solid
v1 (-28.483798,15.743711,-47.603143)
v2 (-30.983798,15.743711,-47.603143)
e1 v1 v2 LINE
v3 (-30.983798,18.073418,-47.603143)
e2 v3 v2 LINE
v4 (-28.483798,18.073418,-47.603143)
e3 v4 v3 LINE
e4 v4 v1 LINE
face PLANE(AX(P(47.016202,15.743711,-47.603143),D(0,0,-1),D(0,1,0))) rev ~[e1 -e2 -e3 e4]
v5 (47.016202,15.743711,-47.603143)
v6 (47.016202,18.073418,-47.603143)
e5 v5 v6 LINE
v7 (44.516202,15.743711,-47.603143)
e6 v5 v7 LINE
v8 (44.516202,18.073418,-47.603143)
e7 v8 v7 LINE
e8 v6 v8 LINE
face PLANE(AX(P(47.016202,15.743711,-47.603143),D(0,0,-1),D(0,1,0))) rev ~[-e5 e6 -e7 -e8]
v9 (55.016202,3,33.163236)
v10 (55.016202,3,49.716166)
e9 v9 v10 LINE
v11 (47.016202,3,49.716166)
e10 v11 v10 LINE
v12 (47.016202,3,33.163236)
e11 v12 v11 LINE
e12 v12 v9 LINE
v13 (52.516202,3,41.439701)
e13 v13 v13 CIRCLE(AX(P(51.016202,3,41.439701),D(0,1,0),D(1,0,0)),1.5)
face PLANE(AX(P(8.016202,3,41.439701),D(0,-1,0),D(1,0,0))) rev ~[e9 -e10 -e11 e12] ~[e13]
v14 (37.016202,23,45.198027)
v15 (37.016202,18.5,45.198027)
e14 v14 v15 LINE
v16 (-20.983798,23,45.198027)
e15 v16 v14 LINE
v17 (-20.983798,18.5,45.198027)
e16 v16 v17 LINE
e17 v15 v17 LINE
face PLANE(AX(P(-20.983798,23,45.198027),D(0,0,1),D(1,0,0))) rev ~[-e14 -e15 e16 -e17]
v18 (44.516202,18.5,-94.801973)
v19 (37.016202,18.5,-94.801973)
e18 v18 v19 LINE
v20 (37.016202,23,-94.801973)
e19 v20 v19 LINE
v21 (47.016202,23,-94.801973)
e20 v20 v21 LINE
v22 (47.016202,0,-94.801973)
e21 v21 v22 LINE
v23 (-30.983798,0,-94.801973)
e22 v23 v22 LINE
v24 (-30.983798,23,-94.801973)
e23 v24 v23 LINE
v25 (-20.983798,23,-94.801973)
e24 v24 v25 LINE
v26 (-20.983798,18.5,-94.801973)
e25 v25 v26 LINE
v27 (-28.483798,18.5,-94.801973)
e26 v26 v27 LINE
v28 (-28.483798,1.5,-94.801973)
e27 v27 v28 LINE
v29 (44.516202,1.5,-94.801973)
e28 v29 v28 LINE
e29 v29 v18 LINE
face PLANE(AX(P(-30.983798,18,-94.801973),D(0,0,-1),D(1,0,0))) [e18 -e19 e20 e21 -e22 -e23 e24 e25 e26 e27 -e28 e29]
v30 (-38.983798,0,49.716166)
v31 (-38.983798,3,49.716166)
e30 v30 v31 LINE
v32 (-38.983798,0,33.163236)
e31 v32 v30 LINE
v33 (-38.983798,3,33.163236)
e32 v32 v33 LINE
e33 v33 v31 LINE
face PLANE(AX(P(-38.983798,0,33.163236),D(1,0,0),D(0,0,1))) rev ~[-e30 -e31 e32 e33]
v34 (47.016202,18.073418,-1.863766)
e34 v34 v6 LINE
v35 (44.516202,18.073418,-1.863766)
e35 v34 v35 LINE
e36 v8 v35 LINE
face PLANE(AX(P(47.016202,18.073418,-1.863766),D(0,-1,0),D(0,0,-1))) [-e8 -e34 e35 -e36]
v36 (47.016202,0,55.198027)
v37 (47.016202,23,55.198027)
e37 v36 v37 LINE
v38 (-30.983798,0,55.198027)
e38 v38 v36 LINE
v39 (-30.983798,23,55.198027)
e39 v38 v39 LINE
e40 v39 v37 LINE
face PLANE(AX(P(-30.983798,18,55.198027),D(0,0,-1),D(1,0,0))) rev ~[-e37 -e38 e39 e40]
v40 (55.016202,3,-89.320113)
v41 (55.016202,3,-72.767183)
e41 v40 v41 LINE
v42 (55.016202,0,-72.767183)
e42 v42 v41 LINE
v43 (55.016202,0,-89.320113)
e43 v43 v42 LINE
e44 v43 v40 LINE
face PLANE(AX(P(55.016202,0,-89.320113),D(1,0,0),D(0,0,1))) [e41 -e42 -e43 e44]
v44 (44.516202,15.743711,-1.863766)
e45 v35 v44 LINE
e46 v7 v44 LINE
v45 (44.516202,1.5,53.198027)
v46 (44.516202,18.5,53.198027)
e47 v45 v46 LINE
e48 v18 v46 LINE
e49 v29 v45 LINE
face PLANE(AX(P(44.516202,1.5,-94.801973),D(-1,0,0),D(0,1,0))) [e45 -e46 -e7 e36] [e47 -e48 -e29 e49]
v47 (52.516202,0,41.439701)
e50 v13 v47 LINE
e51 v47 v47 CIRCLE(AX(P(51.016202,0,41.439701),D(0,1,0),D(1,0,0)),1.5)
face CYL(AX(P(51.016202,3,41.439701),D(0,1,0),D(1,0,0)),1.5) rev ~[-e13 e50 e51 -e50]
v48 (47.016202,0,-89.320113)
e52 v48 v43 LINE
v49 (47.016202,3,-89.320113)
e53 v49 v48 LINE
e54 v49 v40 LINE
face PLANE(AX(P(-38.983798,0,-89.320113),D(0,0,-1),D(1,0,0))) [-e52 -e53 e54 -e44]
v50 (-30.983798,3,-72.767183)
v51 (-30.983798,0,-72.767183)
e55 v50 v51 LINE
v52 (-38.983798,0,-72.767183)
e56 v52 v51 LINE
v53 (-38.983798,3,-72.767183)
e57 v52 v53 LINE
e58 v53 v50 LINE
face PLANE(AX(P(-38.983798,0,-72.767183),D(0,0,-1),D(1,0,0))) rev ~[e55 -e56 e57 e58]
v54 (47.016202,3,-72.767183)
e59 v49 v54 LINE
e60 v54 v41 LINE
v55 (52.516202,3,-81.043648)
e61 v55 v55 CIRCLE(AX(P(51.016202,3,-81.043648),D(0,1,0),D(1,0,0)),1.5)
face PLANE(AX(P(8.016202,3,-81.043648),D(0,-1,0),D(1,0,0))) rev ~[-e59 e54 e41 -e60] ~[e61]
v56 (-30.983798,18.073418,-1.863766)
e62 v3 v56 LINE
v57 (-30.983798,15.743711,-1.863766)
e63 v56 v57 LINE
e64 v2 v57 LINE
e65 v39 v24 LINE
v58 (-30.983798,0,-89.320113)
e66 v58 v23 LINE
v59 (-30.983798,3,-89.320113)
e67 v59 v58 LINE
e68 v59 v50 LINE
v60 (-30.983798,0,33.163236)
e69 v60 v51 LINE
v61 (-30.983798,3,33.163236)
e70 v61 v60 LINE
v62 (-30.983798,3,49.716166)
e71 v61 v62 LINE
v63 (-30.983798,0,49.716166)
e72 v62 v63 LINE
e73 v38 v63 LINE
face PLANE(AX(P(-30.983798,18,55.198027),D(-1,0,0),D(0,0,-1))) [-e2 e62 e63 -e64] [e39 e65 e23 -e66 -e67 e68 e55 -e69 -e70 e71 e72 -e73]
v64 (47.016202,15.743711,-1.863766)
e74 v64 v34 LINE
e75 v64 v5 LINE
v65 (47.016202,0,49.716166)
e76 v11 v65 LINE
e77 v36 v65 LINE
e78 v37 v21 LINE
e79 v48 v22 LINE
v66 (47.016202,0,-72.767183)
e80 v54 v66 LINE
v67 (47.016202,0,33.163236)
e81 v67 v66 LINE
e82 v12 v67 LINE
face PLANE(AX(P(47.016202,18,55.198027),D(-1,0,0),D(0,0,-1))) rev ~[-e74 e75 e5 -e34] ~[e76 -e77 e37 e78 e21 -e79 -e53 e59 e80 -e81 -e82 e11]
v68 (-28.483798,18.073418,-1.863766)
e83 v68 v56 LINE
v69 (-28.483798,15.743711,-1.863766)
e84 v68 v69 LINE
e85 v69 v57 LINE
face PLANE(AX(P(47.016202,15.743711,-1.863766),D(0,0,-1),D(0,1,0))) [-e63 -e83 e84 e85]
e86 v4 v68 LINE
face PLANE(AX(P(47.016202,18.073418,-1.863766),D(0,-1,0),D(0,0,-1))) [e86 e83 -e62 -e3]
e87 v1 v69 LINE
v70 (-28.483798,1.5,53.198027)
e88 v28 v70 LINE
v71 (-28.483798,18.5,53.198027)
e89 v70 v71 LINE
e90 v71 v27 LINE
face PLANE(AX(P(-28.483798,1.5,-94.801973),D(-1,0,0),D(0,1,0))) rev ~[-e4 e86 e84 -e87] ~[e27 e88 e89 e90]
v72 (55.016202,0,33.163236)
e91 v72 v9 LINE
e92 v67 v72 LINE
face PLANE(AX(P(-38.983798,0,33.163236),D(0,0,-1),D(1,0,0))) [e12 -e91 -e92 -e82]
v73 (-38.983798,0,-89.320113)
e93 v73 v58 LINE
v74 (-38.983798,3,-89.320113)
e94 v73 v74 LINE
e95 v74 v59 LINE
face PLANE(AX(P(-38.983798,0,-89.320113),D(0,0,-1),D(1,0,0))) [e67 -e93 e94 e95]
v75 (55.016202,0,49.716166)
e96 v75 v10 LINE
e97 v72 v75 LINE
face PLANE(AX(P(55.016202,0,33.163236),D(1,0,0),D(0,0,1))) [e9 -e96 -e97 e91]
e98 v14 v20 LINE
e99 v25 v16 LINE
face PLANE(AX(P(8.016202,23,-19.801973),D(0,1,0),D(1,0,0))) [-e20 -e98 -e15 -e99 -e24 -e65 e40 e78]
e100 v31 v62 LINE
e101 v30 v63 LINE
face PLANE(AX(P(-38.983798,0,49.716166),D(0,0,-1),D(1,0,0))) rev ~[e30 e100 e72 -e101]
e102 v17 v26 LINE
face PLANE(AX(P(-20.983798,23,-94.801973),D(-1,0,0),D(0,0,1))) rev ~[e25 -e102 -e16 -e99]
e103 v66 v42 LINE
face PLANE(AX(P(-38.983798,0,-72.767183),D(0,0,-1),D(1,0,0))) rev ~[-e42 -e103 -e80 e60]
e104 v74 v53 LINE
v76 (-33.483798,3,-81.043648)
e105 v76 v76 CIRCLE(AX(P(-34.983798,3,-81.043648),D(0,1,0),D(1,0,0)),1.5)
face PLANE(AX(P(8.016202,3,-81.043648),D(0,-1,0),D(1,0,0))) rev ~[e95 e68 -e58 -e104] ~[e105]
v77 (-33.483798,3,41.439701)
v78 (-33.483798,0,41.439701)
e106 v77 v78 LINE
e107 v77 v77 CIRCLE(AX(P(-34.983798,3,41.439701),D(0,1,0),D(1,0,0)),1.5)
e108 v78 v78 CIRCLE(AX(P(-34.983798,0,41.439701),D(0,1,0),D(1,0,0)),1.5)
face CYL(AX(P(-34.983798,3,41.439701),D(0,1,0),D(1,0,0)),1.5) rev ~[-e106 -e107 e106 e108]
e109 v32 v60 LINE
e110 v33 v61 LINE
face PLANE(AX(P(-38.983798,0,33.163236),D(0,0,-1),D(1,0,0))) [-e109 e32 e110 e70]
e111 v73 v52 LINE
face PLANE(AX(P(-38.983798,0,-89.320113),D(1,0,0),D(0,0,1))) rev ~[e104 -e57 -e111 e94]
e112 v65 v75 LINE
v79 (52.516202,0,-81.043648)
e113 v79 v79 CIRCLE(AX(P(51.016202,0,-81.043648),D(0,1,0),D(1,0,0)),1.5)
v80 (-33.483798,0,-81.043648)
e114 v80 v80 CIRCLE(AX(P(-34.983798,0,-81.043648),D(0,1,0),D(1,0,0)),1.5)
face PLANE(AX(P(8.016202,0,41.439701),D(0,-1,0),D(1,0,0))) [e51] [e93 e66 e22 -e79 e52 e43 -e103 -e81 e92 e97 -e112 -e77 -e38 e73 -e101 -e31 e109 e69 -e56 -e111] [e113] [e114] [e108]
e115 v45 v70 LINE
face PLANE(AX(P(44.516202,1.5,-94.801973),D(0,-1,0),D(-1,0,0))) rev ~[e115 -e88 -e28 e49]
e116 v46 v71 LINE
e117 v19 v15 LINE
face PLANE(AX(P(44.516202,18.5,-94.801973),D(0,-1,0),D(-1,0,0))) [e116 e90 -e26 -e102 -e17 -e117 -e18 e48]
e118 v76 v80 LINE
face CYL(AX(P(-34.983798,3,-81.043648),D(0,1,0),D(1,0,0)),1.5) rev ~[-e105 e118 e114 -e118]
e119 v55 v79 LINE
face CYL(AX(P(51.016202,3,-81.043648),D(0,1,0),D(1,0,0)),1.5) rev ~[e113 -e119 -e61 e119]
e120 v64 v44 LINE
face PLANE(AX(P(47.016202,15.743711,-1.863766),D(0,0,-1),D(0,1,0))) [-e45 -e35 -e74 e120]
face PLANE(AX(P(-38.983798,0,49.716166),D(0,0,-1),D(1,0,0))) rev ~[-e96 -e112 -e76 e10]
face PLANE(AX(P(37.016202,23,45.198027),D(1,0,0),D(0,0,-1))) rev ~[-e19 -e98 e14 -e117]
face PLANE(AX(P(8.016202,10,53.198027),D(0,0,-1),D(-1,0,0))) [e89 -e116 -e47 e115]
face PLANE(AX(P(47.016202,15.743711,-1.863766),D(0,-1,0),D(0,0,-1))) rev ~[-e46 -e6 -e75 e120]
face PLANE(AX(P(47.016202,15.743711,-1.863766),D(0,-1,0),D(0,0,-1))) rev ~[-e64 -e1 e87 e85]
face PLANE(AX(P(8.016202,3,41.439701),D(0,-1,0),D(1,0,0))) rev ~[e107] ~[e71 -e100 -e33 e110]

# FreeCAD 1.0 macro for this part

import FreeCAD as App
import Part
import Sketcher
from FreeCAD import Vector
Q = App.Units.Quantity

doc = App.newDocument("Part")
params = doc.addObject("Spreadsheet::Sheet", "Params")
for row, (alias, value) in enumerate([
    ("sketch1_width", "78 mm"),
    ("sketch1_height", "150 mm"),
    ("pad1_length", "18 mm"),
    ("sketch2_width", "73 mm"),
    ("sketch2_height", "17 mm"),
    ("pocket1_length", "143 mm"),
    ("sketch3_width", "78 mm"),
    ("sketch3_height", "150 mm"),
    ("pad2_length", "5 mm"),
    ("sketch4_width", "73 mm"),
    ("sketch4_height", "17 mm"),
    ("pocket2_length", "148 mm"),
    ("sketch5_width", "58 mm"),
    ("sketch5_height", "140 mm"),
    ("pocket3_length", "10 mm"),
    ("pocket4_length", "147 mm"),
    ("sketch7_width", "94 mm"),
    ("pad3_length", "3 mm"),
    ("sketch8_width", "73 mm"),
    ("sketch8_height", "17 mm"),
    ("pocket5_length", "146 mm"),
    ("sketch9_diameter", "3 mm"),
    ("pocket6_length", "146 mm"),
], start=1):
    params.set(f"A{row}", alias)
    params.set(f"B{row}", "=" + value)
    params.setAlias(f"B{row}", alias)

body = doc.addObject("PartDesign::Body", "Body")

sketch1 = body.newObject("Sketcher::SketchObject", "Sketch")
sketch1.AttachmentSupport = (doc.getObject("XZ_Plane"), [""])
sketch1.MapMode = "FlatFace"
sketch1.addGeometry([
    Part.LineSegment(Vector(-31, -95, 0), Vector(-31, 55, 0)),
    Part.LineSegment(Vector(-31, 55, 0), Vector(47, 55, 0)),
    Part.LineSegment(Vector(47, 55, 0), Vector(47, -95, 0)),
    Part.LineSegment(Vector(47, -95, 0), Vector(-31, -95, 0)),
], False)
sketch1.addConstraint([
    Sketcher.Constraint("Coincident", 0, 2, 1, 1),
    Sketcher.Constraint("Coincident", 1, 2, 2, 1),
    Sketcher.Constraint("Coincident", 2, 2, 3, 1),
    Sketcher.Constraint("Coincident", 3, 2, 0, 1),
    Sketcher.Constraint("Vertical", 0),
    Sketcher.Constraint("Horizontal", 1),
    Sketcher.Constraint("Vertical", 2),
    Sketcher.Constraint("Horizontal", 3),
    Sketcher.Constraint("DistanceX", 1, 1, 1, 2, Q("78 mm")),
    Sketcher.Constraint("DistanceY", 0, 1, 0, 2, Q("150 mm")),
    Sketcher.Constraint("DistanceX", 0, 2, -1, 1, Q("30.983798 mm")),
    Sketcher.Constraint("DistanceY", -1, 1, 0, 2, Q("55.198027 mm")),
])
sketch1.setExpression("Constraints[8]", "Params.sketch1_width")
sketch1.setExpression("Constraints[9]", "Params.sketch1_height")
pad1 = body.newObject("PartDesign::Pad", "Pad")
pad1.Profile = sketch1
pad1.setExpression("Length", "Params.pad1_length")
pad1.Reversed = True

sketch2 = body.newObject("Sketcher::SketchObject", "Sketch001")
sketch2.AttachmentSupport = (doc.getObject("XY_Plane"), [""])
sketch2.MapMode = "FlatFace"
sketch2.AttachmentOffset = App.Placement(Vector(0, 0, -94.801973), App.Rotation())
sketch2.addGeometry([
    Part.LineSegment(Vector(45, 18, 0), Vector(45, 2, 0)),
    Part.LineSegment(Vector(45, 2, 0), Vector(-28, 2, 0)),
    Part.LineSegment(Vector(-28, 2, 0), Vector(-28, 18, 0)),
    Part.LineSegment(Vector(-28, 18, 0), Vector(45, 18, 0)),
], False)
sketch2.addConstraint([
    Sketcher.Constraint("Coincident", 0, 2, 1, 1),
    Sketcher.Constraint("Coincident", 1, 2, 2, 1),
    Sketcher.Constraint("Coincident", 2, 2, 3, 1),
    Sketcher.Constraint("Coincident", 3, 2, 0, 1),
    Sketcher.Constraint("Vertical", 0),
    Sketcher.Constraint("Horizontal", 1),
    Sketcher.Constraint("Vertical", 2),
    Sketcher.Constraint("Horizontal", 3),
    Sketcher.Constraint("DistanceX", 1, 2, 1, 1, Q("73 mm")),
    Sketcher.Constraint("DistanceY", 0, 2, 0, 1, Q("17 mm")),
    Sketcher.Constraint("DistanceY", -1, 1, 0, 2, Q("1.5 mm")),
    Sketcher.Constraint("DistanceX", -1, 1, 0, 2, Q("44.516202 mm")),
])
sketch2.setExpression("Constraints[8]", "Params.sketch2_width")
sketch2.setExpression("Constraints[9]", "Params.sketch2_height")
pocket1 = body.newObject("PartDesign::Pocket", "Pocket")
pocket1.Profile = sketch2
pocket1.setExpression("Length", "Params.pocket1_length")
pocket1.Reversed = True

sketch3 = body.newObject("Sketcher::SketchObject", "Sketch002")
sketch3.AttachmentSupport = (doc.getObject("XZ_Plane"), [""])
sketch3.MapMode = "FlatFace"
sketch3.AttachmentOffset = App.Placement(Vector(0, 0, -18), App.Rotation())
sketch3.addGeometry([
    Part.LineSegment(Vector(-31, -95, 0), Vector(-31, 55, 0)),
    Part.LineSegment(Vector(-31, 55, 0), Vector(47, 55, 0)),
    Part.LineSegment(Vector(47, 55, 0), Vector(47, -95, 0)),
    Part.LineSegment(Vector(47, -95, 0), Vector(-31, -95, 0)),
], False)
sketch3.addConstraint([
    Sketcher.Constraint("Coincident", 0, 2, 1, 1),
    Sketcher.Constraint("Coincident", 1, 2, 2, 1),
    Sketcher.Constraint("Coincident", 2, 2, 3, 1),
    Sketcher.Constraint("Coincident", 3, 2, 0, 1),
    Sketcher.Constraint("Vertical", 0),
    Sketcher.Constraint("Horizontal", 1),
    Sketcher.Constraint("Vertical", 2),
    Sketcher.Constraint("Horizontal", 3),
    Sketcher.Constraint("DistanceX", 1, 1, 1, 2, Q("78 mm")),
    Sketcher.Constraint("DistanceY", 0, 1, 0, 2, Q("150 mm")),
    Sketcher.Constraint("DistanceX", 0, 2, -1, 1, Q("30.983798 mm")),
    Sketcher.Constraint("DistanceY", -1, 1, 0, 2, Q("55.198027 mm")),
])
sketch3.setExpression("Constraints[8]", "Params.sketch3_width")
sketch3.setExpression("Constraints[9]", "Params.sketch3_height")
pad2 = body.newObject("PartDesign::Pad", "Pad001")
pad2.Profile = sketch3
pad2.setExpression("Length", "Params.pad2_length")
pad2.Reversed = True

sketch4 = body.newObject("Sketcher::SketchObject", "Sketch003")
sketch4.AttachmentSupport = (doc.getObject("XY_Plane"), [""])
sketch4.MapMode = "FlatFace"
sketch4.AttachmentOffset = App.Placement(Vector(0, 0, -94.801973), App.Rotation())
sketch4.addGeometry([
    Part.LineSegment(Vector(45, 18, 0), Vector(45, 2, 0)),
    Part.LineSegment(Vector(45, 2, 0), Vector(-28, 2, 0)),
    Part.LineSegment(Vector(-28, 2, 0), Vector(-28, 18, 0)),
    Part.LineSegment(Vector(-28, 18, 0), Vector(45, 18, 0)),
], False)
sketch4.addConstraint([
    Sketcher.Constraint("Coincident", 0, 2, 1, 1),
    Sketcher.Constraint("Coincident", 1, 2, 2, 1),
    Sketcher.Constraint("Coincident", 2, 2, 3, 1),
    Sketcher.Constraint("Coincident", 3, 2, 0, 1),
    Sketcher.Constraint("Vertical", 0),
    Sketcher.Constraint("Horizontal", 1),
    Sketcher.Constraint("Vertical", 2),
    Sketcher.Constraint("Horizontal", 3),
    Sketcher.Constraint("DistanceX", 1, 2, 1, 1, Q("73 mm")),
    Sketcher.Constraint("DistanceY", 0, 2, 0, 1, Q("17 mm")),
    Sketcher.Constraint("DistanceY", -1, 1, 0, 2, Q("1.5 mm")),
    Sketcher.Constraint("DistanceX", -1, 1, 0, 2, Q("44.516202 mm")),
])
sketch4.setExpression("Constraints[8]", "Params.sketch4_width")
sketch4.setExpression("Constraints[9]", "Params.sketch4_height")
pocket2 = body.newObject("PartDesign::Pocket", "Pocket001")
pocket2.Profile = sketch4
pocket2.setExpression("Length", "Params.pocket2_length")
pocket2.Reversed = True

sketch5 = body.newObject("Sketcher::SketchObject", "Sketch004")
sketch5.AttachmentSupport = (doc.getObject("XZ_Plane"), [""])
sketch5.MapMode = "FlatFace"
sketch5.AttachmentOffset = App.Placement(Vector(0, 0, -23), App.Rotation())
sketch5.addGeometry([
    Part.LineSegment(Vector(-21, 45, 0), Vector(37, 45, 0)),
    Part.LineSegment(Vector(37, 45, 0), Vector(37, -95, 0)),
    Part.LineSegment(Vector(37, -95, 0), Vector(-21, -95, 0)),
    Part.LineSegment(Vector(-21, -95, 0), Vector(-21, 45, 0)),
], False)
sketch5.addConstraint([
    Sketcher.Constraint("Coincident", 0, 2, 1, 1),
    Sketcher.Constraint("Coincident", 1, 2, 2, 1),
    Sketcher.Constraint("Coincident", 2, 2, 3, 1),
    Sketcher.Constraint("Coincident", 3, 2, 0, 1),
    Sketcher.Constraint("Horizontal", 0),
    Sketcher.Constraint("Vertical", 1),
    Sketcher.Constraint("Horizontal", 2),
    Sketcher.Constraint("Vertical", 3),
    Sketcher.Constraint("DistanceX", 0, 1, 0, 2, Q("58 mm")),
    Sketcher.Constraint("DistanceY", 1, 2, 1, 1, Q("140 mm")),
    Sketcher.Constraint("DistanceX", -1, 1, 0, 2, Q("37.016202 mm")),
    Sketcher.Constraint("DistanceY", -1, 1, 0, 2, Q("45.198027 mm")),
])
sketch5.setExpression("Constraints[8]", "Params.sketch5_width")
sketch5.setExpression("Constraints[9]", "Params.sketch5_height")
pocket3 = body.newObject("PartDesign::Pocket", "Pocket002")
pocket3.Profile = sketch5
pocket3.setExpression("Length", "Params.pocket3_length")
pocket3.Reversed = True

sketch6 = body.newObject("Sketcher::SketchObject", "Sketch005")
sketch6.AttachmentSupport = (doc.getObject("YZ_Plane"), [""])
sketch6.MapMode = "FlatFace"
sketch6.AttachmentOffset = App.Placement(Vector(0, 0, 47.016202), App.Rotation())
sketch6.addGeometry([
    Part.LineSegment(Vector(18.1, -1.9, 0), Vector(15.7, -1.9, 0)),
    Part.LineSegment(Vector(15.7, -1.9, 0), Vector(15.7, -47.6, 0)),
    Part.LineSegment(Vector(15.7, -47.6, 0), Vector(18.1, -47.6, 0)),
    Part.LineSegment(Vector(18.1, -47.6, 0), Vector(18.1, -1.9, 0)),
], False)
sketch6.addConstraint([
    Sketcher.Constraint("Coincident", 0, 2, 1, 1),
    Sketcher.Constraint("Coincident", 1, 2, 2, 1),
    Sketcher.Constraint("Coincident", 2, 2, 3, 1),
    Sketcher.Constraint("Coincident", 3, 2, 0, 1),
    Sketcher.Constraint("Horizontal", 0),
    Sketcher.Constraint("Vertical", 1),
    Sketcher.Constraint("Horizontal", 2),
    Sketcher.Constraint("Vertical", 3),
    Sketcher.Constraint("DistanceX", 0, 2, 0, 1, Q("2.329707 mm")),
    Sketcher.Constraint("DistanceY", 1, 2, 1, 1, Q("45.739378 mm")),
    Sketcher.Constraint("DistanceX", -1, 1, 0, 2, Q("15.743711 mm")),
    Sketcher.Constraint("DistanceY", 0, 2, -1, 1, Q("1.863766 mm")),
])
pocket4 = body.newObject("PartDesign::Pocket", "Pocket003")
pocket4.Profile = sketch6
pocket4.setExpression("Length", "Params.pocket4_length")

sketch7 = body.newObject("Sketcher::SketchObject", "Sketch006")
sketch7.AttachmentSupport = (doc.getObject("XZ_Plane"), [""])
sketch7.MapMode = "FlatFace"
sketch7.addGeometry([
    Part.LineSegment(Vector(-39, 50, 0), Vector(-39, 33, 0)),
    Part.LineSegment(Vector(-39, 33, 0), Vector(55, 33, 0)),
    Part.LineSegment(Vector(55, 33, 0), Vector(55, 50, 0)),
    Part.LineSegment(Vector(55, 50, 0), Vector(-39, 50, 0)),
    Part.LineSegment(Vector(-39, -73, 0), Vector(-39, -89, 0)),
    Part.LineSegment(Vector(-39, -89, 0), Vector(55, -89, 0)),
    Part.LineSegment(Vector(55, -89, 0), Vector(55, -73, 0)),
    Part.LineSegment(Vector(55, -73, 0), Vector(-39, -73, 0)),
], False)
sketch7.addConstraint([
    Sketcher.Constraint("Coincident", 0, 2, 1, 1),
    Sketcher.Constraint("Coincident", 1, 2, 2, 1),
    Sketcher.Constraint("Coincident", 2, 2, 3, 1),
    Sketcher.Constraint("Coincident", 3, 2, 0, 1),
    Sketcher.Constraint("Coincident", 4, 2, 5, 1),
    Sketcher.Constraint("Coincident", 5, 2, 6, 1),
    Sketcher.Constraint("Coincident", 6, 2, 7, 1),
    Sketcher.Constraint("Coincident", 7, 2, 4, 1),
    Sketcher.Constraint("Vertical", 0),
    Sketcher.Constraint("Horizontal", 1),
    Sketcher.Constraint("Vertical", 2),
    Sketcher.Constraint("Horizontal", 3),
    Sketcher.Constraint("Vertical", 4),
    Sketcher.Constraint("Horizontal", 5),
    Sketcher.Constraint("Vertical", 6),
    Sketcher.Constraint("Horizontal", 7),
    Sketcher.Constraint("Vertical", 3, 2, 4, 2),
    Sketcher.Constraint("Vertical", 2, 2, 5, 2),
    Sketcher.Constraint("Equal", 2, 4),
    Sketcher.Constraint("DistanceX", 1, 1, 1, 2, Q("94 mm")),
    Sketcher.Constraint("DistanceY", 0, 2, 0, 1, Q("16.55293 mm")),
    Sketcher.Constraint("DistanceY", 4, 2, 0, 2, Q("122.483349 mm")),
    Sketcher.Constraint("DistanceX", 0, 2, -1, 1, Q("38.983798 mm")),
    Sketcher.Constraint("DistanceY", -1, 1, 0, 2, Q("33.163236 mm")),
])
sketch7.setExpression("Constraints[19]", "Params.sketch7_width")
pad3 = body.newObject("PartDesign::Pad", "Pad002")
pad3.Profile = sketch7
pad3.setExpression("Length", "Params.pad3_length")
pad3.Reversed = True

sketch8 = body.newObject("Sketcher::SketchObject", "Sketch007")
sketch8.AttachmentSupport = (doc.getObject("XY_Plane"), [""])
sketch8.MapMode = "FlatFace"
sketch8.AttachmentOffset = App.Placement(Vector(0, 0, -94.801973), App.Rotation())
sketch8.addGeometry([
    Part.LineSegment(Vector(45, 18, 0), Vector(45, 2, 0)),
    Part.LineSegment(Vector(45, 2, 0), Vector(-28, 2, 0)),
    Part.LineSegment(Vector(-28, 2, 0), Vector(-28, 18, 0)),
    Part.LineSegment(Vector(-28, 18, 0), Vector(45, 18, 0)),
], False)
sketch8.addConstraint([
    Sketcher.Constraint("Coincident", 0, 2, 1, 1),
    Sketcher.Constraint("Coincident", 1, 2, 2, 1),
    Sketcher.Constraint("Coincident", 2, 2, 3, 1),
    Sketcher.Constraint("Coincident", 3, 2, 0, 1),
    Sketcher.Constraint("Vertical", 0),
    Sketcher.Constraint("Horizontal", 1),
    Sketcher.Constraint("Vertical", 2),
    Sketcher.Constraint("Horizontal", 3),
    Sketcher.Constraint("DistanceX", 1, 2, 1, 1, Q("73 mm")),
    Sketcher.Constraint("DistanceY", 0, 2, 0, 1, Q("17 mm")),
    Sketcher.Constraint("DistanceY", -1, 1, 0, 2, Q("1.5 mm")),
    Sketcher.Constraint("DistanceX", -1, 1, 0, 2, Q("44.516202 mm")),
])
sketch8.setExpression("Constraints[8]", "Params.sketch8_width")
sketch8.setExpression("Constraints[9]", "Params.sketch8_height")
pocket5 = body.newObject("PartDesign::Pocket", "Pocket004")
pocket5.Profile = sketch8
pocket5.setExpression("Length", "Params.pocket5_length")
pocket5.Reversed = True

sketch9 = body.newObject("Sketcher::SketchObject", "Sketch008")
sketch9.AttachmentSupport = (doc.getObject("XZ_Plane"), [""])
sketch9.MapMode = "FlatFace"
sketch9.AttachmentOffset = App.Placement(Vector(0, 0, -3), App.Rotation())
sketch9.addGeometry([
    Part.Circle(Vector(-35, 41.4, 0), Vector(0, 0, 1), 1.5),
    Part.Circle(Vector(51, 41.4, 0), Vector(0, 0, 1), 1.5),
    Part.Circle(Vector(51, -81, 0), Vector(0, 0, 1), 1.5),
    Part.Circle(Vector(-35, -81, 0), Vector(0, 0, 1), 1.5),
], False)
sketch9.addConstraint([
    Sketcher.Constraint("Equal", 0, 1),
    Sketcher.Constraint("Equal", 1, 2),
    Sketcher.Constraint("Equal", 2, 3),
    Sketcher.Constraint("Horizontal", 0, 3, 1, 3),
    Sketcher.Constraint("Horizontal", 2, 3, 3, 3),
    Sketcher.Constraint("Vertical", 1, 3, 2, 3),
    Sketcher.Constraint("Vertical", 0, 3, 3, 3),
    Sketcher.Constraint("Diameter", 0, Q("3 mm")),
    Sketcher.Constraint("DistanceX", 0, 3, 1, 3, Q("86 mm")),
    Sketcher.Constraint("DistanceY", -1, 1, 0, 3, Q("41.439701 mm")),
    Sketcher.Constraint("DistanceY", 2, 3, 1, 3, Q("122.483349 mm")),
    Sketcher.Constraint("DistanceX", 0, 3, -1, 1, Q("34.983798 mm")),
])
sketch9.setExpression("Constraints[7]", "Params.sketch9_diameter")
pocket6 = body.newObject("PartDesign::Pocket", "Pocket005")
pocket6.Profile = sketch9
pocket6.setExpression("Length", "Params.pocket6_length")
pocket6.Reversed = True

doc.recompute()
